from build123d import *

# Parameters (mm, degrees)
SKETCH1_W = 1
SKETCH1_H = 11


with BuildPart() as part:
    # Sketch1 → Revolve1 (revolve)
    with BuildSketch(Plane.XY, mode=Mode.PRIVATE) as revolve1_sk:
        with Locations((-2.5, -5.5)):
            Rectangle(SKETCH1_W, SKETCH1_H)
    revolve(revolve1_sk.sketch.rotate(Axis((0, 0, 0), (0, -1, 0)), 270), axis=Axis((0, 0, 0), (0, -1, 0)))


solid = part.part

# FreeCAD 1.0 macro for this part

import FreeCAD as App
import Part
import Sketcher


def add_polygon(sketch, points):
    """Adds a closed chain of lines whose ends are joined by coincident constraints."""
    first, n = sketch.GeometryCount, len(points)
    for a, b in zip(points, points[1:] + points[:1]):
        sketch.addGeometry(Part.LineSegment(App.Vector(*a, 0), App.Vector(*b, 0)), False)
    for i in range(n):
        sketch.addConstraint(Sketcher.Constraint("Coincident", first + i, 2, first + (i + 1) % n, 1))

doc = App.newDocument("Part")
params = doc.addObject("Spreadsheet::Sheet", "Params")
for row, (alias, value) in enumerate([
    ("sketch1_width", "1 mm"),
    ("sketch1_height", "11 mm"),
    ("revolution_angle", "360 deg"),
], start=1):
    params.set(f"A{row}", alias)
    params.set(f"B{row}", "=" + value)
    params.setAlias(f"B{row}", alias)

body = doc.addObject("PartDesign::Body", "Body")

# Sketch on XY plane
sketch1 = body.newObject("Sketcher::SketchObject", "Sketch")
sketch1.AttachmentSupport = (doc.getObject("XY_Plane"), [""])
sketch1.MapMode = "FlatFace"
add_polygon(sketch1, [(-3, 0), (-3, -11), (-2, -11), (-2, 0)])  # lines 0-3
sketch1.addConstraint(Sketcher.Constraint("Vertical", 0))
sketch1.addConstraint(Sketcher.Constraint("Horizontal", 1))
sketch1.addConstraint(Sketcher.Constraint("Vertical", 2))
sketch1.addConstraint(Sketcher.Constraint("Horizontal", 3))
sketch1.addConstraint(Sketcher.Constraint("PointOnObject", 2, 2, -1))
sketch1.addConstraint(Sketcher.Constraint("DistanceX", 1, 1, 1, 2, 1.0))
sketch1.addConstraint(Sketcher.Constraint("DistanceY", 0, 2, 0, 1, 11.0))
sketch1.addConstraint(Sketcher.Constraint("DistanceX", 0, 2, -1, 1, 3.0))
sketch1.setExpression("Constraints[9]", "Params.sketch1_width")
sketch1.setExpression("Constraints[10]", "Params.sketch1_height")
revolution = body.newObject("PartDesign::Revolution", "Revolution")
revolution.Profile = sketch1
revolution.ReferenceAxis = (sketch1, ["V_Axis"])
revolution.setExpression("Angle", "Params.revolution_angle")

doc.recompute()
